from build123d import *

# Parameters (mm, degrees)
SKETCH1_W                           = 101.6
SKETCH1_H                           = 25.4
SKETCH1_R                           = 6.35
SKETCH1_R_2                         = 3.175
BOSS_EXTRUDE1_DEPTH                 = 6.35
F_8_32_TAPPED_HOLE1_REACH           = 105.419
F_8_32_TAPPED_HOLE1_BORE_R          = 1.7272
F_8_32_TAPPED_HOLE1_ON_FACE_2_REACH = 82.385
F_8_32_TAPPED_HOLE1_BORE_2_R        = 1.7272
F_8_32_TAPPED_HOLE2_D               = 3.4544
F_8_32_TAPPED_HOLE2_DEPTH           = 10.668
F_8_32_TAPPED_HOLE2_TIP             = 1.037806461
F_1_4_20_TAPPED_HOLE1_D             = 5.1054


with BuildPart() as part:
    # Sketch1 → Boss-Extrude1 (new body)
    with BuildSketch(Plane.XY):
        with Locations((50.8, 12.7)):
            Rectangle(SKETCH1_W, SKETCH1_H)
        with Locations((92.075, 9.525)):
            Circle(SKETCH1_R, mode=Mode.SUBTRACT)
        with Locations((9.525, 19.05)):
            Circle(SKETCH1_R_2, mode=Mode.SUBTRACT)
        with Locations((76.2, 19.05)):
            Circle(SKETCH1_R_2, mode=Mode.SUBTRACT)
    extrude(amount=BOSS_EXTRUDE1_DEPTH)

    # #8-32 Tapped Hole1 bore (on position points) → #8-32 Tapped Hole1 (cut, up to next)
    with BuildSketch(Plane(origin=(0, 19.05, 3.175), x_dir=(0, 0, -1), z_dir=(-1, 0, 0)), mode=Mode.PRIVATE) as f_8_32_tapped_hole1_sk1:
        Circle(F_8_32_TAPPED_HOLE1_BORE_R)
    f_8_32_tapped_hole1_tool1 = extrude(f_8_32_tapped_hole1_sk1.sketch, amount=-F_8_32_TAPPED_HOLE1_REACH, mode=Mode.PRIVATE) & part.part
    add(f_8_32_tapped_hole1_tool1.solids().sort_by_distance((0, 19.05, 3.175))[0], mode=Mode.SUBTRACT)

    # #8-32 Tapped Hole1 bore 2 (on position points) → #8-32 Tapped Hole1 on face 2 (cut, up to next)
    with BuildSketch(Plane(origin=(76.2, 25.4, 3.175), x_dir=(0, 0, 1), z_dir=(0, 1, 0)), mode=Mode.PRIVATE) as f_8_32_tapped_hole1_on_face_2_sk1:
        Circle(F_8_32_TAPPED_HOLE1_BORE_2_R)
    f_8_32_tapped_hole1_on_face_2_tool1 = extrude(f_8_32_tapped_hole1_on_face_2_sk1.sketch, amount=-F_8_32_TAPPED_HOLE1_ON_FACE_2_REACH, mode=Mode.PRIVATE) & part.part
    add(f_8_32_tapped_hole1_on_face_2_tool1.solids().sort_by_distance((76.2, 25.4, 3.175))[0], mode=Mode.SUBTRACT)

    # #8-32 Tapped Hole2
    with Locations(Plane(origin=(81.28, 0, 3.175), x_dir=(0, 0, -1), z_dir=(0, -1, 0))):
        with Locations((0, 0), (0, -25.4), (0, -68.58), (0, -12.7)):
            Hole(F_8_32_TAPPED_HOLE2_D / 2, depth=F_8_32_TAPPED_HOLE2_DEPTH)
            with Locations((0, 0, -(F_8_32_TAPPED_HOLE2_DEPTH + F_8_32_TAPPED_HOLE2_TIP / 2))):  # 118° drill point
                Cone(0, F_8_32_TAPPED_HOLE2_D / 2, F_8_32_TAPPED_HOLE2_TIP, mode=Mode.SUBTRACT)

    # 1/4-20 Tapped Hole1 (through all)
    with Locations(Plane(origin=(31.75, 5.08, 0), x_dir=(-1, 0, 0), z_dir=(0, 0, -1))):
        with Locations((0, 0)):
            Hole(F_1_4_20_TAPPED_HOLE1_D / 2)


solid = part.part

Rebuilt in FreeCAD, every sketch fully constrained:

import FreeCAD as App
import Part
import Sketcher
Q = App.Units.Quantity


def add_polygon(sketch, points):
    """Adds a closed chain of lines whose ends are joined by coincident constraints."""
    first, n = sketch.GeometryCount, len(points)
    for a, b in zip(points, points[1:] + points[:1]):
        sketch.addGeometry(Part.LineSegment(App.Vector(*a, 0), App.Vector(*b, 0)), False)
    for i in range(n):
        sketch.addConstraint(Sketcher.Constraint("Coincident", first + i, 2, first + (i + 1) % n, 1))

doc = App.newDocument("Part")
body = doc.addObject("PartDesign::Body", "Body")

# Sketch on XY plane
sketch1 = body.newObject("Sketcher::SketchObject", "Sketch")
sketch1.AttachmentSupport = (doc.getObject("XY_Plane"), [""])
sketch1.MapMode = "FlatFace"
add_polygon(sketch1, [(0, 25.4), (0, 0), (101.6, 0), (101.6, 25.4)])  # lines 0-3
sketch1.addGeometry(Part.Circle(App.Vector(92.1, 9.5, 0), App.Vector(0, 0, 1), 6.3), False)  # 4
sketch1.addGeometry(Part.Circle(App.Vector(9.5, 19.1, 0), App.Vector(0, 0, 1), 3.2), False)  # 5
sketch1.addGeometry(Part.Circle(App.Vector(76.2, 19.1, 0), App.Vector(0, 0, 1), 3.2), False)  # 6
sketch1.addConstraint([
    Sketcher.Constraint("Vertical", 0),
    Sketcher.Constraint("Horizontal", 1),
    Sketcher.Constraint("Vertical", 2),
    Sketcher.Constraint("Horizontal", 3),
    Sketcher.Constraint("Coincident", 0, 2, -1, 1),
    Sketcher.Constraint("Equal", 5, 6),
    Sketcher.Constraint("Horizontal", 5, 3, 6, 3),
    Sketcher.Constraint("Diameter", 4, Q("0.5 in")),
    Sketcher.Constraint("Diameter", 5, Q("0.25 in")),
    Sketcher.Constraint("DistanceX", 1, 1, 1, 2, Q("4 in")),
    Sketcher.Constraint("DistanceY", 0, 2, 0, 1, Q("1 in")),
    Sketcher.Constraint("DistanceX", -1, 1, 6, 3, Q("3 in")),
    Sketcher.Constraint("DistanceY", -1, 1, 5, 3, Q("0.75 in")),
    Sketcher.Constraint("DistanceX", 5, 3, 4, 3, Q("3.25 in")),
    Sketcher.Constraint("DistanceX", -1, 1, 4, 3, Q("3.625 in")),
    Sketcher.Constraint("DistanceY", -1, 1, 4, 3, Q("0.375 in")),
])
pad1 = body.newObject("PartDesign::Pad", "Pad")
pad1.Profile = sketch1
pad1.Length = Q("0.25 in")

# Sketch on YZ plane
sketch2 = body.newObject("Sketcher::SketchObject", "Sketch001")
sketch2.AttachmentSupport = (doc.getObject("YZ_Plane"), [""])
sketch2.MapMode = "FlatFace"
sketch2.addGeometry(Part.Circle(App.Vector(19.1, 3.2, 0), App.Vector(0, 0, 1), 1.7), False)
sketch2.addConstraint([
    Sketcher.Constraint("Diameter", 0, Q("0.136 in")),
    Sketcher.Constraint("DistanceX", -1, 1, 0, 3, Q("0.75 in")),
    Sketcher.Constraint("DistanceY", -1, 1, 0, 3, Q("0.125 in")),
])
pocket1 = body.newObject("PartDesign::Pocket", "Pocket")
pocket1.Profile = sketch2
pocket1.Type = "UpToFirst"
pocket1.Reversed = True

# Sketch on XZ plane
sketch3 = body.newObject("Sketcher::SketchObject", "Sketch002")
sketch3.AttachmentSupport = (doc.getObject("XZ_Plane"), [""])
sketch3.MapMode = "FlatFace"
sketch3.AttachmentOffset = App.Placement(App.Vector(0, 0, -1 * 25.4), App.Rotation())
sketch3.addGeometry(Part.Circle(App.Vector(76.2, 3.2, 0), App.Vector(0, 0, 1), 1.7), False)
sketch3.addConstraint([
    Sketcher.Constraint("Diameter", 0, Q("0.136 in")),
    Sketcher.Constraint("DistanceX", -1, 1, 0, 3, Q("3 in")),
    Sketcher.Constraint("DistanceY", -1, 1, 0, 3, Q("0.125 in")),
])
pocket2 = body.newObject("PartDesign::Pocket", "Pocket001")
pocket2.Profile = sketch3
pocket2.Type = "UpToFirst"
pocket2.Reversed = True

# Sketch on XZ plane
sketch4 = body.newObject("Sketcher::SketchObject", "Sketch003")
sketch4.AttachmentSupport = (doc.getObject("XZ_Plane"), [""])
sketch4.MapMode = "FlatFace"
sketch4.addGeometry([
    Part.Circle(App.Vector(81.3, 3.2, 0), App.Vector(0, 0, 1), 1.7),
    Part.Circle(App.Vector(55.9, 3.2, 0), App.Vector(0, 0, 1), 1.7),
    Part.Circle(App.Vector(12.7, 3.2, 0), App.Vector(0, 0, 1), 1.7),
    Part.Circle(App.Vector(68.6, 3.2, 0), App.Vector(0, 0, 1), 1.7),
], False)
sketch4.addConstraint([
    Sketcher.Constraint("Equal", 0, 1),
    Sketcher.Constraint("Equal", 1, 2),
    Sketcher.Constraint("Equal", 2, 3),
    Sketcher.Constraint("Horizontal", 0, 3, 1, 3),
    Sketcher.Constraint("Horizontal", 1, 3, 2, 3),
    Sketcher.Constraint("Horizontal", 2, 3, 3, 3),
    Sketcher.Constraint("Diameter", 0, Q("0.136 in")),
    Sketcher.Constraint("DistanceX", 1, 3, 0, 3, Q("1 in")),
    Sketcher.Constraint("DistanceX", -1, 1, 0, 3, Q("3.2 in")),
    Sketcher.Constraint("DistanceX", -1, 1, 2, 3, Q("0.5 in")),
    Sketcher.Constraint("DistanceX", -1, 1, 3, 3, Q("2.7 in")),
    Sketcher.Constraint("DistanceY", -1, 1, 0, 3, Q("0.125 in")),
])
doc.recompute()
hole = body.newObject("PartDesign::Hole", "Hole")
hole.Profile = sketch4
hole.ThreadType = "None"
hole.Diameter = Q("0.136 in")
hole.DepthType = "Dimension"
hole.Depth = Q("0.42 in")
hole.DrillPoint = "Angled"
hole.DrillPointAngle = 118

# Sketch on XY plane
sketch5 = body.newObject("Sketcher::SketchObject", "Sketch004")
sketch5.AttachmentSupport = (doc.getObject("XY_Plane"), [""])
sketch5.MapMode = "FlatFace"
sketch5.addGeometry(Part.Circle(App.Vector(31.8, 5.1, 0), App.Vector(0, 0, 1), 2.6), False)
sketch5.addConstraint([
    Sketcher.Constraint("Diameter", 0, Q("0.201 in")),
    Sketcher.Constraint("DistanceY", -1, 1, 0, 3, Q("0.2 in")),
    Sketcher.Constraint("DistanceX", -1, 1, 0, 3, Q("1.25 in")),
])
doc.recompute()
hole2 = body.newObject("PartDesign::Hole", "Hole001")
hole2.Profile = sketch5
hole2.ThreadType = "None"
hole2.Diameter = Q("0.201 in")
hole2.DepthType = "ThroughAll"
hole2.Reversed = True

doc.recompute()
